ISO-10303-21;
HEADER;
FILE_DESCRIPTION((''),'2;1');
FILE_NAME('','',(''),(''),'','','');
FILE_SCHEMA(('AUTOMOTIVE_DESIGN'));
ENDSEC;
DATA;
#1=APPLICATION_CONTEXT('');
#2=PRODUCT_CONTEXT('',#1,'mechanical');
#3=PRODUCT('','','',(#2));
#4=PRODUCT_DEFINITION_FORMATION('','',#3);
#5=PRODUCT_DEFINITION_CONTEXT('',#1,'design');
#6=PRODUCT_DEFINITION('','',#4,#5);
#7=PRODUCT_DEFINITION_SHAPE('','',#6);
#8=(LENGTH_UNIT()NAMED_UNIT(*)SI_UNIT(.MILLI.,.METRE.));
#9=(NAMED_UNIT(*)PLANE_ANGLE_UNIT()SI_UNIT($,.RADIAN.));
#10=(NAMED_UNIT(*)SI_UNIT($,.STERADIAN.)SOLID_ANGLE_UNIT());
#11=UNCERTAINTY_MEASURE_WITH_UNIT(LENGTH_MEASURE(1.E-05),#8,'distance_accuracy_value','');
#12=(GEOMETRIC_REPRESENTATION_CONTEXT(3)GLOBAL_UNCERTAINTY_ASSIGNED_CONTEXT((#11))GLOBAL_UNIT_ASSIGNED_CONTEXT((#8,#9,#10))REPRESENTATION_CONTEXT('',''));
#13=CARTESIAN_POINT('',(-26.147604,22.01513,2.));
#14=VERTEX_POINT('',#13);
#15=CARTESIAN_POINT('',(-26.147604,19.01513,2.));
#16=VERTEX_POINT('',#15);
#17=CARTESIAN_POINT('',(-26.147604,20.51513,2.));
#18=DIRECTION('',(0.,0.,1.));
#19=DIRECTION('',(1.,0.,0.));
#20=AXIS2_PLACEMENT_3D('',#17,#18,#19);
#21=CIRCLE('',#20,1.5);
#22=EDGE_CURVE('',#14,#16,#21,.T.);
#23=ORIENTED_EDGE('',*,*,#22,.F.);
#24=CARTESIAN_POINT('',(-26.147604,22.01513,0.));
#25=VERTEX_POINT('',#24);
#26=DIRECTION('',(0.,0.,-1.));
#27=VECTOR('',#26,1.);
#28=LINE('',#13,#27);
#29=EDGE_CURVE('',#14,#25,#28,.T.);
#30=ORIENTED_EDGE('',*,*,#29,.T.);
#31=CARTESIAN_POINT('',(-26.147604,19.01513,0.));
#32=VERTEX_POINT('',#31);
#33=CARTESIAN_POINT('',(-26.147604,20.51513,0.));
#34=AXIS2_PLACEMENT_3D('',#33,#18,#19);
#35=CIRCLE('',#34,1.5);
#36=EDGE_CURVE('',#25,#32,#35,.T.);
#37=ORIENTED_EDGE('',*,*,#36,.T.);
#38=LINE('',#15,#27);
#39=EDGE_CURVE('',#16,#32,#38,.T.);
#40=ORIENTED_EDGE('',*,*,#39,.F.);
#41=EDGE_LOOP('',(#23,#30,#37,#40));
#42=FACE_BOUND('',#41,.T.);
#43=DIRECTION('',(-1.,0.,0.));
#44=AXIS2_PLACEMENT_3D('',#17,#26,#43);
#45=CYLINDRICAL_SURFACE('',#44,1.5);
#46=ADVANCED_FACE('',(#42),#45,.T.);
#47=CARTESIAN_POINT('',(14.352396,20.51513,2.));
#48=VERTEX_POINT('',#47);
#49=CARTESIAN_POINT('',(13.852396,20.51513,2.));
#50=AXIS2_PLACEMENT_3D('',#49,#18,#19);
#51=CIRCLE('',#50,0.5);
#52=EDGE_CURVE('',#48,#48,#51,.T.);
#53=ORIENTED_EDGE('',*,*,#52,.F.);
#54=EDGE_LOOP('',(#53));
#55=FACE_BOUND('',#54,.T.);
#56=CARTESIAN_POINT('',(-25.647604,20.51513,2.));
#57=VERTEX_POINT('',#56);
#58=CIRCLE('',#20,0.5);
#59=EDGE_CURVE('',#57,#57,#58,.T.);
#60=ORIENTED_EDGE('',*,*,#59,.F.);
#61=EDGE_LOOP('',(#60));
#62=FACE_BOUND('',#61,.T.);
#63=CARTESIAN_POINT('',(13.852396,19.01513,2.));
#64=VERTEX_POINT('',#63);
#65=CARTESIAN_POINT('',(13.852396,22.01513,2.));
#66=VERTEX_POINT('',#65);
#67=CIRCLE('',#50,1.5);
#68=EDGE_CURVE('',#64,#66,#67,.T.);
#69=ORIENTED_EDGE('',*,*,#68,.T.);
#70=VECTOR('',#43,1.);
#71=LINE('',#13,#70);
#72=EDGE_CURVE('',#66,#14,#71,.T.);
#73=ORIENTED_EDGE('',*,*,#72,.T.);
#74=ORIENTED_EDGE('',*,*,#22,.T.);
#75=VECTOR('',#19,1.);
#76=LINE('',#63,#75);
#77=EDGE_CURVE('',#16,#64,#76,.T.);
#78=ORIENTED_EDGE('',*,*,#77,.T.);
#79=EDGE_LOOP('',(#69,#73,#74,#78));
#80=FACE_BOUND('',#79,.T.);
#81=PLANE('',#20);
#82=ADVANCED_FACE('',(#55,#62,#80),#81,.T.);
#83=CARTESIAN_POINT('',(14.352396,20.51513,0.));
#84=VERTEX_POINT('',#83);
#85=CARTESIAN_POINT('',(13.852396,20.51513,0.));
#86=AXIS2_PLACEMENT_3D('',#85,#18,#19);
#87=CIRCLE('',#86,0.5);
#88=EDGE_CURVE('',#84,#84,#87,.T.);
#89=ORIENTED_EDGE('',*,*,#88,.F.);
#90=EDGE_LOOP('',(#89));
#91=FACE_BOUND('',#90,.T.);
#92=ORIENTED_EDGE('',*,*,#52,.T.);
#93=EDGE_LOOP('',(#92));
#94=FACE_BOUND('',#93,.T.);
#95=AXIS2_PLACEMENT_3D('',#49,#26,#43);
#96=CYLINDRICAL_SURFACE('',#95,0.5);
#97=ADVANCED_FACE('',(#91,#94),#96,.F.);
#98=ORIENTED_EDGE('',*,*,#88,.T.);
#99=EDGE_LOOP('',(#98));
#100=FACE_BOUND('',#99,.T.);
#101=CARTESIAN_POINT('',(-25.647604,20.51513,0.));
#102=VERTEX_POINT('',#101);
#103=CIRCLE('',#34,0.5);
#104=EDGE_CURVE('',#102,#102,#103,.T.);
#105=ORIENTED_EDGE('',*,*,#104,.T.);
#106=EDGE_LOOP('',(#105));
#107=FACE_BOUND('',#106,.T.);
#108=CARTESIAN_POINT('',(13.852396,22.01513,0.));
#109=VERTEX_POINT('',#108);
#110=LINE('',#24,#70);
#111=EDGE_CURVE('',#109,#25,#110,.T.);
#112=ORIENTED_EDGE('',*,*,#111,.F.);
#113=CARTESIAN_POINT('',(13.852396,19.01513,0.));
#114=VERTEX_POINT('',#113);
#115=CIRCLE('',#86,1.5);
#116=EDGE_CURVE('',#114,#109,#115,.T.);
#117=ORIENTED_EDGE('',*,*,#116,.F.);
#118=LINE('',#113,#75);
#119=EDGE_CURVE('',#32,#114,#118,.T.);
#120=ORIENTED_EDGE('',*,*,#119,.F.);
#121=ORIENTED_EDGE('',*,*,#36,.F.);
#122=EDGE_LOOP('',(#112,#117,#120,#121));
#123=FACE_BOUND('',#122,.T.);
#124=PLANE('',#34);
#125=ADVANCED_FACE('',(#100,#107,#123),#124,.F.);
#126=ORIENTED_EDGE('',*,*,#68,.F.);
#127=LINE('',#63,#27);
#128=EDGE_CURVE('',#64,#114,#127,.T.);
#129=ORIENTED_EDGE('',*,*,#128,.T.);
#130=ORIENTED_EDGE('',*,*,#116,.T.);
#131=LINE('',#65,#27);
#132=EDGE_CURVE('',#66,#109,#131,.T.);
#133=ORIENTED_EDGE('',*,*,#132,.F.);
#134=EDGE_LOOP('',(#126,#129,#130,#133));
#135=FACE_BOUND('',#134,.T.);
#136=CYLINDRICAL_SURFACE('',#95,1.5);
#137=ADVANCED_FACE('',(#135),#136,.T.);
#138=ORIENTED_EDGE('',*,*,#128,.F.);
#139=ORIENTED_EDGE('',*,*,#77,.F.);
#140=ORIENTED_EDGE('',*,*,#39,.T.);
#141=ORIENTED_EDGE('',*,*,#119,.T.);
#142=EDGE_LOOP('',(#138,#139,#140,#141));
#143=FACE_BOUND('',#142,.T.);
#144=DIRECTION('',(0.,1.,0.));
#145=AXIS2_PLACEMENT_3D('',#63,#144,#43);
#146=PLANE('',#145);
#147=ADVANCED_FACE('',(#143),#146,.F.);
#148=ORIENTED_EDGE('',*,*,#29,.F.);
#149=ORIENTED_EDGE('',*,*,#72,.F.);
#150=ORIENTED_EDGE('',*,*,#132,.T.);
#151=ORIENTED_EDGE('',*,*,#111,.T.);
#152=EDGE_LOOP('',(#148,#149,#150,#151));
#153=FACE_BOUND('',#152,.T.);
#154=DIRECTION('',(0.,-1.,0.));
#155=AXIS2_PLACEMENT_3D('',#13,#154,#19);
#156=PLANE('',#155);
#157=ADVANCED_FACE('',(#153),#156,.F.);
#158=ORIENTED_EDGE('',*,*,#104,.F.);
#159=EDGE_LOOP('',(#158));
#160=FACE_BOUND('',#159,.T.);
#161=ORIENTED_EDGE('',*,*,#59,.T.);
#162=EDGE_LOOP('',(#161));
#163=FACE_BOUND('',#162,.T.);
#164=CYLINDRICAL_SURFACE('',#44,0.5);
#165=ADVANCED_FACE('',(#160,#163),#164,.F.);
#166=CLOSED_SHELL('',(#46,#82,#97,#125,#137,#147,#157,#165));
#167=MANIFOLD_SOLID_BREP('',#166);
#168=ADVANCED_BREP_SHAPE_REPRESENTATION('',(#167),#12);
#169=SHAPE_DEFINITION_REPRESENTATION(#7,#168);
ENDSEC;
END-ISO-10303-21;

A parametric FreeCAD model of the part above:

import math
import FreeCAD as App
import Part
import Sketcher
Q = App.Units.Quantity

doc = App.newDocument("Part")
body = doc.addObject("PartDesign::Body", "Body")

# Sketch on XY plane
sketch1 = doc.addObject("Sketcher::SketchObject", "Sketch")
body.addObject(sketch1)
sketch1.AttachmentSupport = (doc.XY_Plane, [""])
sketch1.MapMode = "FlatFace"
sketch1.addGeometry([
    Part.LineSegment(App.Vector(13.852396, 22.01513, 0), App.Vector(-26.147604, 22.01513, 0)),  # 0
    Part.ArcOfCircle(Part.Circle(App.Vector(-26.147604, 20.51513, 0), App.Vector(0, 0, 1), 1.5), math.radians(90), math.radians(270)),  # 1
    Part.LineSegment(App.Vector(-26.147604, 19.01513, 0), App.Vector(13.852396, 19.01513, 0)),  # 2
    Part.ArcOfCircle(Part.Circle(App.Vector(13.852396, 20.51513, 0), App.Vector(0, 0, 1), 1.5), math.radians(-90), math.radians(90)),  # 3
    Part.Circle(App.Vector(13.852396, 20.51513, 0), App.Vector(0, 0, 1), 0.5),  # 4
    Part.Circle(App.Vector(-26.147604, 20.51513, 0), App.Vector(0, 0, 1), 0.5),  # 5
], False)
sketch1.addConstraint([
    Sketcher.Constraint("Tangent", 0, 2, 1, 1),
    Sketcher.Constraint("Tangent", 1, 2, 2, 1),
    Sketcher.Constraint("Tangent", 2, 2, 3, 1),
    Sketcher.Constraint("Tangent", 3, 2, 0, 1),
    Sketcher.Constraint("Horizontal", 0),
    Sketcher.Constraint("Horizontal", 2),
    Sketcher.Constraint("Coincident", 4, 3, 3, 3),
    Sketcher.Constraint("Coincident", 5, 3, 1, 3),
    Sketcher.Constraint("Equal", 4, 5),
    Sketcher.Constraint("Diameter", 4, Q("1 mm")),
    Sketcher.Constraint("Radius", 1, Q("1.5 mm")),
    Sketcher.Constraint("DistanceX", 0, 2, 0, 1, Q("40 mm")),
    Sketcher.Constraint("DistanceY", -1, 1, 1, 3, Q("20.51513 mm")),
    Sketcher.Constraint("DistanceX", 1, 3, -1, 1, Q("26.147604 mm")),
])
pad1 = doc.addObject("PartDesign::Pad", "Pad")
body.addObject(pad1)
pad1.Profile = sketch1
pad1.Length = 2

doc.recompute()
